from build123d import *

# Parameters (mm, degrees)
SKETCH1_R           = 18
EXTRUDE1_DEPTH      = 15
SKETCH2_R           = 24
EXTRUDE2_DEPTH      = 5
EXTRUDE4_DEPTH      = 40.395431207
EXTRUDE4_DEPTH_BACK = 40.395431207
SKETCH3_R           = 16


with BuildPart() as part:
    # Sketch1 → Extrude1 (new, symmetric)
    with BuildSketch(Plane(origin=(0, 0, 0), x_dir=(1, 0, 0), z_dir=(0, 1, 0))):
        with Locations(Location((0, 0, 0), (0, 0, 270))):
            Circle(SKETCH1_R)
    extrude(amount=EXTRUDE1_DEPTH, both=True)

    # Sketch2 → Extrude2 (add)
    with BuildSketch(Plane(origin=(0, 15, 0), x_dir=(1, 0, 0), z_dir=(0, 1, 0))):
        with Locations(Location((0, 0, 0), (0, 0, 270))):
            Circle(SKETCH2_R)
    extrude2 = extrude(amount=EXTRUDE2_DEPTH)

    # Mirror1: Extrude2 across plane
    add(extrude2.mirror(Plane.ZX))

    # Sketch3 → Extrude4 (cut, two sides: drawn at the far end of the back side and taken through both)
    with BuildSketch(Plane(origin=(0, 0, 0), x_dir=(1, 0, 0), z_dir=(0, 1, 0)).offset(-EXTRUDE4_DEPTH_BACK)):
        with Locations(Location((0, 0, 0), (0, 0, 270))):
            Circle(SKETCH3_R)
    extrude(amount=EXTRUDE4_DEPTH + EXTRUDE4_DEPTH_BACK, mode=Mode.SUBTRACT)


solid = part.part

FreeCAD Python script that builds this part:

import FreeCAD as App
import Part
import Sketcher

V = App.Vector

doc = App.newDocument("Part")
body = doc.addObject("PartDesign::Body", "Body")

# Sketch on XZ plane
sketch1 = body.newObject("Sketcher::SketchObject", "Sketch")
sketch1.AttachmentSupport = (doc.getObject("XZ_Plane"), [""])
sketch1.MapMode = "FlatFace"
sketch1.addGeometry(Part.Circle(V(0, 0, 0), V(0, 0, 1), 18), False)
sketch1.addConstraint([
    Sketcher.Constraint("Coincident", 0, 3, -1, 1),
    Sketcher.Constraint("Diameter", 0, 36.0),
])
pad1 = body.newObject("PartDesign::Pad", "Pad")
pad1.Profile = sketch1
pad1.Length = 30
pad1.Midplane = True

# Sketch on XZ plane
sketch2 = body.newObject("Sketcher::SketchObject", "Sketch001")
sketch2.AttachmentSupport = (doc.getObject("XZ_Plane"), [""])
sketch2.MapMode = "FlatFace"
sketch2.AttachmentOffset = App.Placement(V(0, 0, -15), App.Rotation())
sketch2.addGeometry(Part.Circle(V(0, 0, 0), V(0, 0, 1), 24), False)
sketch2.addConstraint([
    Sketcher.Constraint("Coincident", 0, 3, -1, 1),
    Sketcher.Constraint("Diameter", 0, 48.0),
])
pad2 = body.newObject("PartDesign::Pad", "Pad001")
pad2.Profile = sketch2
pad2.Length = 5
pad2.Reversed = True
doc.recompute()

mirrored = body.newObject("PartDesign::Mirrored", "Mirrored")
mirrored.Originals = [pad2]
mirrored.MirrorPlane = (doc.getObject("XZ_Plane"), [""])
body.Tip = mirrored

# Sketch on XZ plane
sketch3 = body.newObject("Sketcher::SketchObject", "Sketch002")
sketch3.AttachmentSupport = (doc.getObject("XZ_Plane"), [""])
sketch3.MapMode = "FlatFace"
sketch3.addGeometry(Part.Circle(V(0, 0, 0), V(0, 0, 1), 16), False)
sketch3.addConstraint([
    Sketcher.Constraint("Coincident", 0, 3, -1, 1),
    Sketcher.Constraint("Diameter", 0, 32.0),
])
pocket1 = body.newObject("PartDesign::Pocket", "Pocket")
pocket1.Profile = sketch3
pocket1.Type = "ThroughAll"
pocket1.Midplane = True

doc.recompute()
